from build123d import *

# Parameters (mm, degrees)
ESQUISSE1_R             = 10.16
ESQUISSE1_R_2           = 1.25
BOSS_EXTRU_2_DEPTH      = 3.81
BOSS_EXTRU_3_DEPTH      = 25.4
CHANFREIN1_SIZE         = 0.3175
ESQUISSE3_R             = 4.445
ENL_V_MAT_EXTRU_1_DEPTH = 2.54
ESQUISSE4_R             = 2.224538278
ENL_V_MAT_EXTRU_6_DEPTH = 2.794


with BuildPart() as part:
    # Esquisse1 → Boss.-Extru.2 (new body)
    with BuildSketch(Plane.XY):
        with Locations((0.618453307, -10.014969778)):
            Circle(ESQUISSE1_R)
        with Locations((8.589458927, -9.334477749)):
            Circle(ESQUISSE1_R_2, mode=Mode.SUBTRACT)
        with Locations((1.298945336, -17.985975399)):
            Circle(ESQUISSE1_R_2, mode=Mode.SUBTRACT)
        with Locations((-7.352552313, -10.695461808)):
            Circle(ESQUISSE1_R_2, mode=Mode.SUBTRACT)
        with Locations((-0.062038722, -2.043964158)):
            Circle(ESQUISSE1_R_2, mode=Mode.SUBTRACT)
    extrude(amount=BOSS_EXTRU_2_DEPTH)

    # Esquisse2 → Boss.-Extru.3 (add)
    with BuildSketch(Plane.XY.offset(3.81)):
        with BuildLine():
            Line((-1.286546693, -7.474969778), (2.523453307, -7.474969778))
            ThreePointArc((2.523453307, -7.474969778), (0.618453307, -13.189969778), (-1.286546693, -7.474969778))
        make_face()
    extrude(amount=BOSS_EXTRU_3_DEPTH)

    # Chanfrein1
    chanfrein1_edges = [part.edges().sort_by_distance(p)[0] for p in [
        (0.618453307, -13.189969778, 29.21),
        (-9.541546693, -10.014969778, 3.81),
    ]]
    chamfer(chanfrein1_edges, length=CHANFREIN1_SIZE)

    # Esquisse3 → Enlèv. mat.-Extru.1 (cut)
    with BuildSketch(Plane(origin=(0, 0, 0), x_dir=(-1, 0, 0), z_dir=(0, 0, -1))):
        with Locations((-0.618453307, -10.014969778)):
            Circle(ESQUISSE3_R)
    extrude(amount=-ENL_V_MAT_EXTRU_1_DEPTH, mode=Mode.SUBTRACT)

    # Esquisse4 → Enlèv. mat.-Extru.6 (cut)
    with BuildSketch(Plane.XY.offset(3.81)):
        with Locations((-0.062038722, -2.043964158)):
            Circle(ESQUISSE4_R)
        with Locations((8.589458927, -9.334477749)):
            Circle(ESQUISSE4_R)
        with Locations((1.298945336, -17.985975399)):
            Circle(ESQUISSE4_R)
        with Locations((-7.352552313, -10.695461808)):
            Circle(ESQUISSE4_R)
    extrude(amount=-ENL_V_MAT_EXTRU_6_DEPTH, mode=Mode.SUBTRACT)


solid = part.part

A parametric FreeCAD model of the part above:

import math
import FreeCAD as App
import Part
import Sketcher
from FreeCAD import Vector
Q = App.Units.Quantity


def edges_at(feature, points):
    """Names of the edges that pass closest to the given points."""
    edges = feature.Shape.Edges
    near = lambda p: min(range(len(edges)), key=lambda i: edges[i].distToShape(Part.Vertex(*p))[0])
    return sorted({f"Edge{near(p) + 1}" for p in points})

doc = App.newDocument("Part")
body = doc.addObject("PartDesign::Body", "Body")

sketch1 = doc.addObject("Sketcher::SketchObject", "Sketch")
body.addObject(sketch1)
sketch1.AttachmentSupport = (doc.XY_Plane, [""])
sketch1.MapMode = "FlatFace"
sketch1.addGeometry([
    Part.Circle(Vector(0.6, -10, 0), Vector(0, 0, 1), 10.2),
    Part.Circle(Vector(-7.4, -10.7, 0), Vector(0, 0, 1), 1.2),
    Part.Circle(Vector(1.3, -18, 0), Vector(0, 0, 1), 1.2),
    Part.Circle(Vector(-0.1, -2, 0), Vector(0, 0, 1), 1.2),
    Part.Circle(Vector(8.6, -9.3, 0), Vector(0, 0, 1), 1.2),
], False)
sketch1.addConstraint([
    Sketcher.Constraint("Equal", 1, 2),
    Sketcher.Constraint("Equal", 2, 3),
    Sketcher.Constraint("Equal", 3, 4),
    Sketcher.Constraint("Diameter", 0, Q("0.8 in")),
    Sketcher.Constraint("Diameter", 1, Q("2.5 mm")),
    Sketcher.Constraint("DistanceY", 0, 3, -1, 1, Q("10.01497 mm")),
    Sketcher.Constraint("DistanceY", 1, 3, -1, 1, Q("10.695462 mm")),
    Sketcher.Constraint("DistanceX", 3, 3, -1, 1, Q("0.062039 mm")),
    Sketcher.Constraint("DistanceX", -1, 1, 4, 3, Q("8.589459 mm")),
    Sketcher.Constraint("DistanceY", 2, 3, 3, 3, Q("15.942011 mm")),
    Sketcher.Constraint("DistanceX", 1, 3, 4, 3, Q("15.942011 mm")),
    Sketcher.Constraint("DistanceX", -1, 1, 0, 3, Q("0.618453 mm")),
    Sketcher.Constraint("DistanceX", -1, 1, 2, 3, Q("1.298945 mm")),
    Sketcher.Constraint("DistanceY", 2, 3, -1, 1, Q("17.985975 mm")),
    Sketcher.Constraint("DistanceY", 4, 3, -1, 1, Q("9.334478 mm")),
])
pad1 = doc.addObject("PartDesign::Pad", "Pad")
body.addObject(pad1)
pad1.Profile = sketch1
pad1.Length = Q("0.15 in")

sketch2 = doc.addObject("Sketcher::SketchObject", "Sketch001")
body.addObject(sketch2)
sketch2.AttachmentSupport = (doc.XY_Plane, [""])
sketch2.MapMode = "FlatFace"
sketch2.AttachmentOffset = App.Placement(Vector(0, 0, 0.15 * 25.4), App.Rotation())
sketch2.addGeometry([
    Part.LineSegment(Vector(2.5, -7.5, 0), Vector(-1.3, -7.5, 0)),
    Part.ArcOfCircle(Part.Circle(Vector(0.6, -10, 0), Vector(0, 0, 1), 3.2), math.radians(127), math.radians(413)),
], False)
sketch2.addConstraint([
    Sketcher.Constraint("Coincident", 0, 1, 1, 2),
    Sketcher.Constraint("Coincident", 1, 1, 0, 2),
    Sketcher.Constraint("Horizontal", 0),
    Sketcher.Constraint("Radius", 1, Q("0.125 in")),
    Sketcher.Constraint("DistanceX", 0, 2, 0, 1, Q("0.15 in")),
    Sketcher.Constraint("DistanceY", 1, 3, -1, 1, Q("10.01497 mm")),
    Sketcher.Constraint("DistanceX", -1, 1, 1, 3, Q("0.618453 mm")),
])
pad2 = doc.addObject("PartDesign::Pad", "Pad001")
body.addObject(pad2)
pad2.Profile = sketch2
pad2.Length = Q("1 in")
doc.recompute()

chamfer = doc.addObject("PartDesign::Chamfer", "Chamfer")
body.addObject(chamfer)
chamfer.Base = (pad2, edges_at(pad2, [(0.618, -13.19, 29.21), (-9.542, -10.015, 3.81)]))
chamfer.Size = Q("0.0125 in")

sketch3 = doc.addObject("Sketcher::SketchObject", "Sketch002")
body.addObject(sketch3)
sketch3.AttachmentSupport = (doc.XY_Plane, [""])
sketch3.MapMode = "FlatFace"
sketch3.addGeometry(Part.Circle(Vector(0.6, -10, 0), Vector(0, 0, 1), 4.4), False)
sketch3.addConstraint([
    Sketcher.Constraint("Diameter", 0, Q("0.35 in")),
    Sketcher.Constraint("DistanceY", 0, 3, -1, 1, Q("10.01497 mm")),
    Sketcher.Constraint("DistanceX", -1, 1, 0, 3, Q("0.618453 mm")),
])
pocket1 = doc.addObject("PartDesign::Pocket", "Pocket")
body.addObject(pocket1)
pocket1.Profile = sketch3
pocket1.Length = Q("0.1 in")
pocket1.Reversed = True

sketch4 = doc.addObject("Sketcher::SketchObject", "Sketch003")
body.addObject(sketch4)
sketch4.AttachmentSupport = (doc.XY_Plane, [""])
sketch4.MapMode = "FlatFace"
sketch4.AttachmentOffset = App.Placement(Vector(0, 0, 0.15 * 25.4), App.Rotation())
sketch4.addGeometry([
    Part.Circle(Vector(-0.1, -2, 0), Vector(0, 0, 1), 2.2),
    Part.Circle(Vector(8.6, -9.3, 0), Vector(0, 0, 1), 2.2),
    Part.Circle(Vector(1.3, -18, 0), Vector(0, 0, 1), 2.2),
    Part.Circle(Vector(-7.4, -10.7, 0), Vector(0, 0, 1), 2.2),
], False)
sketch4.addConstraint([
    Sketcher.Constraint("Equal", 0, 1),
    Sketcher.Constraint("Equal", 1, 2),
    Sketcher.Constraint("Equal", 2, 3),
    Sketcher.Constraint("Diameter", 0, Q("4.449077 mm")),
    Sketcher.Constraint("DistanceX", 0, 3, -1, 1, Q("0.062039 mm")),
    Sketcher.Constraint("DistanceX", -1, 1, 1, 3, Q("8.589459 mm")),
    Sketcher.Constraint("DistanceY", 3, 3, -1, 1, Q("10.695462 mm")),
    Sketcher.Constraint("DistanceY", 2, 3, 0, 3, Q("15.942011 mm")),
    Sketcher.Constraint("DistanceX", 3, 3, 1, 3, Q("15.942011 mm")),
    Sketcher.Constraint("DistanceY", 0, 3, -1, 1, Q("2.043964 mm")),
    Sketcher.Constraint("DistanceY", 1, 3, -1, 1, Q("9.334478 mm")),
    Sketcher.Constraint("DistanceX", -1, 1, 2, 3, Q("1.298945 mm")),
])
pocket2 = doc.addObject("PartDesign::Pocket", "Pocket001")
body.addObject(pocket2)
pocket2.Profile = sketch4
pocket2.Length = Q("0.11 in")

doc.recompute()
